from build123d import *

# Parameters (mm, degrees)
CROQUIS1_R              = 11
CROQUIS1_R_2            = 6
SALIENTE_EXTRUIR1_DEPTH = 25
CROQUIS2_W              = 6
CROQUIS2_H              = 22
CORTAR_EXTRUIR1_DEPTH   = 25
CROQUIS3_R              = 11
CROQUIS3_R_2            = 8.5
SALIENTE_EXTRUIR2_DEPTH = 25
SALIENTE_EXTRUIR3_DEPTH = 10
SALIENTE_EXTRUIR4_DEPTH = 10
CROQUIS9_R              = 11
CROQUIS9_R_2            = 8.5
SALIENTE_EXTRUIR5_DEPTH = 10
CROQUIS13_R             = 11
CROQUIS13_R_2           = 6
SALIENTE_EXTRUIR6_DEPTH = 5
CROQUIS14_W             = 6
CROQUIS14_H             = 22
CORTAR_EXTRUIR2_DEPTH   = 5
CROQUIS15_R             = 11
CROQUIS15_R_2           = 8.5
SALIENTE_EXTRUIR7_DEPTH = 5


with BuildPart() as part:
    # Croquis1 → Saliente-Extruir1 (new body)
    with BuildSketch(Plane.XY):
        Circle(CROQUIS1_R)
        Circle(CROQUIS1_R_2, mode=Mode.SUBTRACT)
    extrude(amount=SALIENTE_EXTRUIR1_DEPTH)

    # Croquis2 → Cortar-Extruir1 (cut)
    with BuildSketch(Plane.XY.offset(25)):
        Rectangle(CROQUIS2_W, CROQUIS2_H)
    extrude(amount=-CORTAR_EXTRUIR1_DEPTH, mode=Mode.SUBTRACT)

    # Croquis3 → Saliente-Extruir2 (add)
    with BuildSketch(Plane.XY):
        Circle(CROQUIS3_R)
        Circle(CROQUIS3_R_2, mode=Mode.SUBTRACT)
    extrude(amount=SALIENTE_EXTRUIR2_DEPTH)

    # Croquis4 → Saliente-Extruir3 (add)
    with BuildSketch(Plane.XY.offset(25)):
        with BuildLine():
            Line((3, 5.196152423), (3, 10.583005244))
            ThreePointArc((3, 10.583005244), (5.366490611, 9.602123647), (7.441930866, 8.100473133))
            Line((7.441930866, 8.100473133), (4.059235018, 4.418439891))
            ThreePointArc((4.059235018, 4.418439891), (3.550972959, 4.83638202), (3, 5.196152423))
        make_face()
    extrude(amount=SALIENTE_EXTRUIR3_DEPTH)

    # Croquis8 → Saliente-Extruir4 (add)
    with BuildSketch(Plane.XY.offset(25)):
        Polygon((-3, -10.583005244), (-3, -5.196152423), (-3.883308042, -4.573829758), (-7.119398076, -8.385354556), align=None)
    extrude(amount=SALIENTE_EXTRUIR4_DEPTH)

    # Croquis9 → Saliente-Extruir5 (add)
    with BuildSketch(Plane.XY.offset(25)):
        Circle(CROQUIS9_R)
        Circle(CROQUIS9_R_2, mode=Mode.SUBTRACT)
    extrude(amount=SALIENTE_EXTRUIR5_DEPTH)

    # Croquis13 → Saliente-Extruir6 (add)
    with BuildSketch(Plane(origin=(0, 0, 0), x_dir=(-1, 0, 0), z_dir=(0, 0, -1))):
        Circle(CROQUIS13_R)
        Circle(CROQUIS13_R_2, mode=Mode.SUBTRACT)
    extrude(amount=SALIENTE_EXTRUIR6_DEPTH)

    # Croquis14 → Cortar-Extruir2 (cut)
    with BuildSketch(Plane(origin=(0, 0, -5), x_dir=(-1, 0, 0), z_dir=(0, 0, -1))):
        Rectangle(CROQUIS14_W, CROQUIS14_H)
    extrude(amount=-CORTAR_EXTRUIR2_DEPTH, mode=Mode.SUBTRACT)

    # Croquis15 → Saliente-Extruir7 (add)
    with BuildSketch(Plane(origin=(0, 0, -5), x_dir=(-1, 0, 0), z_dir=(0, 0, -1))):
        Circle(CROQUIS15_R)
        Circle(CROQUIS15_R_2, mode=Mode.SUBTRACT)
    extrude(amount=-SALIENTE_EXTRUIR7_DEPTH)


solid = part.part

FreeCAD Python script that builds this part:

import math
import FreeCAD as App
import Part
import Sketcher
Q = App.Units.Quantity

doc = App.newDocument("Part")
body = doc.addObject("PartDesign::Body", "Body")
body.AllowCompound = True

# Sketch on XY plane
sketch1 = body.newObject("Sketcher::SketchObject", "Sketch")
sketch1.AttachmentSupport = (doc.getObject("XY_Plane"), [""])
sketch1.MapMode = "FlatFace"
sketch1.addGeometry([
    Part.Circle(App.Vector(0, 0, 0), App.Vector(0, 0, 1), 11),
    Part.Circle(App.Vector(0, 0, 0), App.Vector(0, 0, 1), 6),
], False)
sketch1.addConstraint([
    Sketcher.Constraint("Coincident", 0, 3, -1, 1),
    Sketcher.Constraint("Coincident", 1, 3, -1, 1),
    Sketcher.Constraint("Diameter", 0, Q("22 mm")),
    Sketcher.Constraint("Diameter", 1, Q("12 mm")),
])
pad1 = body.newObject("PartDesign::Pad", "Pad")
pad1.Profile = sketch1
pad1.Length = 25

# Sketch on XY plane
sketch2 = body.newObject("Sketcher::SketchObject", "Sketch001")
sketch2.AttachmentSupport = (doc.getObject("XY_Plane"), [""])
sketch2.MapMode = "FlatFace"
sketch2.AttachmentOffset = App.Placement(App.Vector(0, 0, 25), App.Rotation())
sketch2.addGeometry([
    Part.LineSegment(App.Vector(-3, 11, 0), App.Vector(-3, -11, 0)),
    Part.LineSegment(App.Vector(-3, -11, 0), App.Vector(3, -11, 0)),
    Part.LineSegment(App.Vector(3, -11, 0), App.Vector(3, 11, 0)),
    Part.LineSegment(App.Vector(3, 11, 0), App.Vector(-3, 11, 0)),
], False)
sketch2.addConstraint([
    Sketcher.Constraint("Coincident", 0, 2, 1, 1),
    Sketcher.Constraint("Coincident", 1, 2, 2, 1),
    Sketcher.Constraint("Coincident", 2, 2, 3, 1),
    Sketcher.Constraint("Coincident", 3, 2, 0, 1),
    Sketcher.Constraint("Vertical", 0),
    Sketcher.Constraint("Horizontal", 1),
    Sketcher.Constraint("Vertical", 2),
    Sketcher.Constraint("Horizontal", 3),
    Sketcher.Constraint("Symmetric", 0, 2, 2, 2, -1, 1),
    Sketcher.Constraint("DistanceX", 1, 1, 1, 2, Q("6 mm")),
    Sketcher.Constraint("DistanceY", 0, 2, 0, 1, Q("22 mm")),
])
pocket1 = body.newObject("PartDesign::Pocket", "Pocket")
pocket1.Profile = sketch2
pocket1.Length = 25

# Sketch on XY plane
sketch3 = body.newObject("Sketcher::SketchObject", "Sketch002")
sketch3.AttachmentSupport = (doc.getObject("XY_Plane"), [""])
sketch3.MapMode = "FlatFace"
sketch3.addGeometry([
    Part.Circle(App.Vector(0, 0, 0), App.Vector(0, 0, 1), 11),
    Part.Circle(App.Vector(0, 0, 0), App.Vector(0, 0, 1), 8),
], False)
sketch3.addConstraint([
    Sketcher.Constraint("Coincident", 0, 3, -1, 1),
    Sketcher.Constraint("Coincident", 1, 3, -1, 1),
    Sketcher.Constraint("Diameter", 0, Q("22 mm")),
    Sketcher.Constraint("Diameter", 1, Q("17 mm")),
])
pad2 = body.newObject("PartDesign::Pad", "Pad001")
pad2.Profile = sketch3
pad2.Length = 25

# Sketch on XY plane
sketch4 = body.newObject("Sketcher::SketchObject", "Sketch003")
sketch4.AttachmentSupport = (doc.getObject("XY_Plane"), [""])
sketch4.MapMode = "FlatFace"
sketch4.AttachmentOffset = App.Placement(App.Vector(0, 0, 25), App.Rotation())
sketch4.addGeometry([
    Part.LineSegment(App.Vector(3, 10.6, 0), App.Vector(3, 5.2, 0)),
    Part.ArcOfCircle(Part.Circle(App.Vector(0, 0, 0), App.Vector(0, 0, 1), 6), math.radians(47.43), math.radians(60)),
    Part.LineSegment(App.Vector(4.1, 4.4, 0), App.Vector(7.4, 8.1, 0)),
    Part.ArcOfCircle(Part.Circle(App.Vector(0, 0, 0), App.Vector(0, 0, 1), 11), math.radians(47), math.radians(74)),
], False)
sketch4.addConstraint([
    Sketcher.Constraint("Coincident", 0, 2, 1, 2),
    Sketcher.Constraint("Coincident", 1, 1, 2, 1),
    Sketcher.Constraint("Coincident", 2, 2, 3, 1),
    Sketcher.Constraint("Coincident", 3, 2, 0, 1),
    Sketcher.Constraint("Vertical", 0),
    Sketcher.Constraint("Coincident", 1, 3, -1, 1),
    Sketcher.Constraint("Coincident", 3, 3, -1, 1),
    Sketcher.Constraint("Radius", 1, Q("6 mm")),
    Sketcher.Constraint("Radius", 3, Q("11 mm")),
    Sketcher.Constraint("DistanceX", -1, 1, 0, 2, Q("3 mm")),
    Sketcher.Constraint("DistanceY", -1, 1, 1, 1, Q("4.41844 mm")),
    Sketcher.Constraint("DistanceX", -1, 1, 2, 2, Q("7.441931 mm")),
])
pad3 = body.newObject("PartDesign::Pad", "Pad002")
pad3.Profile = sketch4
pad3.Length = 10

# Sketch on XY plane
sketch5 = body.newObject("Sketcher::SketchObject", "Sketch004")
sketch5.AttachmentSupport = (doc.getObject("XY_Plane"), [""])
sketch5.MapMode = "FlatFace"
sketch5.AttachmentOffset = App.Placement(App.Vector(0, 0, 25), App.Rotation())
sketch5.addGeometry([
    Part.LineSegment(App.Vector(-3, -10.6, 0), App.Vector(-3, -5.2, 0)),
    Part.LineSegment(App.Vector(-3, -5.2, 0), App.Vector(-3.9, -4.6, 0)),
    Part.LineSegment(App.Vector(-3.9, -4.6, 0), App.Vector(-7.1, -8.4, 0)),
    Part.LineSegment(App.Vector(-7.1, -8.4, 0), App.Vector(-3, -10.6, 0)),
], False)
sketch5.addConstraint([
    Sketcher.Constraint("Coincident", 0, 2, 1, 1),
    Sketcher.Constraint("Coincident", 1, 2, 2, 1),
    Sketcher.Constraint("Coincident", 2, 2, 3, 1),
    Sketcher.Constraint("Coincident", 3, 2, 0, 1),
    Sketcher.Constraint("Vertical", 0),
    Sketcher.Constraint("Distance", 2, Q("5 mm")),
    Sketcher.Constraint("DistanceX", 0, 2, -1, 1, Q("3 mm")),
    Sketcher.Constraint("DistanceX", 2, 2, -1, 1, Q("7.119398 mm")),
    Sketcher.Constraint("Distance", 3, Q("4.668952 mm")),
    Sketcher.Constraint("DistanceY", 0, 1, 0, 2, Q("5.386853 mm")),
    Sketcher.Constraint("DistanceX", 1, 2, -1, 1, Q("3.883308 mm")),
    Sketcher.Constraint("DistanceY", 1, 2, -1, 1, Q("4.57383 mm")),
])
pad4 = body.newObject("PartDesign::Pad", "Pad003")
pad4.Profile = sketch5
pad4.Length = 10

# Sketch on XY plane
sketch6 = body.newObject("Sketcher::SketchObject", "Sketch005")
sketch6.AttachmentSupport = (doc.getObject("XY_Plane"), [""])
sketch6.MapMode = "FlatFace"
sketch6.AttachmentOffset = App.Placement(App.Vector(0, 0, 25), App.Rotation())
sketch6.addGeometry([
    Part.Circle(App.Vector(0, 0, 0), App.Vector(0, 0, 1), 11),
    Part.Circle(App.Vector(0, 0, 0), App.Vector(0, 0, 1), 8),
], False)
sketch6.addConstraint([
    Sketcher.Constraint("Coincident", 0, 3, -1, 1),
    Sketcher.Constraint("Coincident", 1, 3, -1, 1),
    Sketcher.Constraint("Diameter", 0, Q("22 mm")),
    Sketcher.Constraint("Diameter", 1, Q("17 mm")),
])
pad5 = body.newObject("PartDesign::Pad", "Pad004")
pad5.Profile = sketch6
pad5.Length = 10

# Sketch on XY plane
sketch7 = body.newObject("Sketcher::SketchObject", "Sketch006")
sketch7.AttachmentSupport = (doc.getObject("XY_Plane"), [""])
sketch7.MapMode = "FlatFace"
sketch7.addGeometry([
    Part.Circle(App.Vector(0, 0, 0), App.Vector(0, 0, 1), 11),
    Part.Circle(App.Vector(0, 0, 0), App.Vector(0, 0, 1), 6),
], False)
sketch7.addConstraint([
    Sketcher.Constraint("Coincident", 0, 3, -1, 1),
    Sketcher.Constraint("Coincident", 1, 3, -1, 1),
    Sketcher.Constraint("Diameter", 0, Q("22 mm")),
    Sketcher.Constraint("Diameter", 1, Q("12 mm")),
])
pad6 = body.newObject("PartDesign::Pad", "Pad005")
pad6.Profile = sketch7
pad6.Length = 5
pad6.Reversed = True

# Sketch on XY plane
sketch8 = body.newObject("Sketcher::SketchObject", "Sketch007")
sketch8.AttachmentSupport = (doc.getObject("XY_Plane"), [""])
sketch8.MapMode = "FlatFace"
sketch8.AttachmentOffset = App.Placement(App.Vector(0, 0, -5), App.Rotation())
sketch8.addGeometry([
    Part.LineSegment(App.Vector(3, 11, 0), App.Vector(3, -11, 0)),
    Part.LineSegment(App.Vector(3, -11, 0), App.Vector(-3, -11, 0)),
    Part.LineSegment(App.Vector(-3, -11, 0), App.Vector(-3, 11, 0)),
    Part.LineSegment(App.Vector(-3, 11, 0), App.Vector(3, 11, 0)),
], False)
sketch8.addConstraint([
    Sketcher.Constraint("Coincident", 0, 2, 1, 1),
    Sketcher.Constraint("Coincident", 1, 2, 2, 1),
    Sketcher.Constraint("Coincident", 2, 2, 3, 1),
    Sketcher.Constraint("Coincident", 3, 2, 0, 1),
    Sketcher.Constraint("Vertical", 0),
    Sketcher.Constraint("Horizontal", 1),
    Sketcher.Constraint("Vertical", 2),
    Sketcher.Constraint("Horizontal", 3),
    Sketcher.Constraint("Symmetric", 0, 2, 2, 2, -1, 1),
    Sketcher.Constraint("DistanceX", 1, 2, 1, 1, Q("6 mm")),
    Sketcher.Constraint("DistanceY", 0, 2, 0, 1, Q("22 mm")),
])
pocket2 = body.newObject("PartDesign::Pocket", "Pocket001")
pocket2.Profile = sketch8
pocket2.Length = 5
pocket2.Reversed = True

# Sketch on XY plane
sketch9 = body.newObject("Sketcher::SketchObject", "Sketch008")
sketch9.AttachmentSupport = (doc.getObject("XY_Plane"), [""])
sketch9.MapMode = "FlatFace"
sketch9.AttachmentOffset = App.Placement(App.Vector(0, 0, -5), App.Rotation())
sketch9.addGeometry([
    Part.Circle(App.Vector(0, 0, 0), App.Vector(0, 0, 1), 11),
    Part.Circle(App.Vector(0, 0, 0), App.Vector(0, 0, 1), 8),
], False)
sketch9.addConstraint([
    Sketcher.Constraint("Coincident", 0, 3, -1, 1),
    Sketcher.Constraint("Coincident", 1, 3, -1, 1),
    Sketcher.Constraint("Diameter", 0, Q("22 mm")),
    Sketcher.Constraint("Diameter", 1, Q("17 mm")),
])
pad7 = body.newObject("PartDesign::Pad", "Pad006")
pad7.Profile = sketch9
pad7.Length = 5

doc.recompute()
